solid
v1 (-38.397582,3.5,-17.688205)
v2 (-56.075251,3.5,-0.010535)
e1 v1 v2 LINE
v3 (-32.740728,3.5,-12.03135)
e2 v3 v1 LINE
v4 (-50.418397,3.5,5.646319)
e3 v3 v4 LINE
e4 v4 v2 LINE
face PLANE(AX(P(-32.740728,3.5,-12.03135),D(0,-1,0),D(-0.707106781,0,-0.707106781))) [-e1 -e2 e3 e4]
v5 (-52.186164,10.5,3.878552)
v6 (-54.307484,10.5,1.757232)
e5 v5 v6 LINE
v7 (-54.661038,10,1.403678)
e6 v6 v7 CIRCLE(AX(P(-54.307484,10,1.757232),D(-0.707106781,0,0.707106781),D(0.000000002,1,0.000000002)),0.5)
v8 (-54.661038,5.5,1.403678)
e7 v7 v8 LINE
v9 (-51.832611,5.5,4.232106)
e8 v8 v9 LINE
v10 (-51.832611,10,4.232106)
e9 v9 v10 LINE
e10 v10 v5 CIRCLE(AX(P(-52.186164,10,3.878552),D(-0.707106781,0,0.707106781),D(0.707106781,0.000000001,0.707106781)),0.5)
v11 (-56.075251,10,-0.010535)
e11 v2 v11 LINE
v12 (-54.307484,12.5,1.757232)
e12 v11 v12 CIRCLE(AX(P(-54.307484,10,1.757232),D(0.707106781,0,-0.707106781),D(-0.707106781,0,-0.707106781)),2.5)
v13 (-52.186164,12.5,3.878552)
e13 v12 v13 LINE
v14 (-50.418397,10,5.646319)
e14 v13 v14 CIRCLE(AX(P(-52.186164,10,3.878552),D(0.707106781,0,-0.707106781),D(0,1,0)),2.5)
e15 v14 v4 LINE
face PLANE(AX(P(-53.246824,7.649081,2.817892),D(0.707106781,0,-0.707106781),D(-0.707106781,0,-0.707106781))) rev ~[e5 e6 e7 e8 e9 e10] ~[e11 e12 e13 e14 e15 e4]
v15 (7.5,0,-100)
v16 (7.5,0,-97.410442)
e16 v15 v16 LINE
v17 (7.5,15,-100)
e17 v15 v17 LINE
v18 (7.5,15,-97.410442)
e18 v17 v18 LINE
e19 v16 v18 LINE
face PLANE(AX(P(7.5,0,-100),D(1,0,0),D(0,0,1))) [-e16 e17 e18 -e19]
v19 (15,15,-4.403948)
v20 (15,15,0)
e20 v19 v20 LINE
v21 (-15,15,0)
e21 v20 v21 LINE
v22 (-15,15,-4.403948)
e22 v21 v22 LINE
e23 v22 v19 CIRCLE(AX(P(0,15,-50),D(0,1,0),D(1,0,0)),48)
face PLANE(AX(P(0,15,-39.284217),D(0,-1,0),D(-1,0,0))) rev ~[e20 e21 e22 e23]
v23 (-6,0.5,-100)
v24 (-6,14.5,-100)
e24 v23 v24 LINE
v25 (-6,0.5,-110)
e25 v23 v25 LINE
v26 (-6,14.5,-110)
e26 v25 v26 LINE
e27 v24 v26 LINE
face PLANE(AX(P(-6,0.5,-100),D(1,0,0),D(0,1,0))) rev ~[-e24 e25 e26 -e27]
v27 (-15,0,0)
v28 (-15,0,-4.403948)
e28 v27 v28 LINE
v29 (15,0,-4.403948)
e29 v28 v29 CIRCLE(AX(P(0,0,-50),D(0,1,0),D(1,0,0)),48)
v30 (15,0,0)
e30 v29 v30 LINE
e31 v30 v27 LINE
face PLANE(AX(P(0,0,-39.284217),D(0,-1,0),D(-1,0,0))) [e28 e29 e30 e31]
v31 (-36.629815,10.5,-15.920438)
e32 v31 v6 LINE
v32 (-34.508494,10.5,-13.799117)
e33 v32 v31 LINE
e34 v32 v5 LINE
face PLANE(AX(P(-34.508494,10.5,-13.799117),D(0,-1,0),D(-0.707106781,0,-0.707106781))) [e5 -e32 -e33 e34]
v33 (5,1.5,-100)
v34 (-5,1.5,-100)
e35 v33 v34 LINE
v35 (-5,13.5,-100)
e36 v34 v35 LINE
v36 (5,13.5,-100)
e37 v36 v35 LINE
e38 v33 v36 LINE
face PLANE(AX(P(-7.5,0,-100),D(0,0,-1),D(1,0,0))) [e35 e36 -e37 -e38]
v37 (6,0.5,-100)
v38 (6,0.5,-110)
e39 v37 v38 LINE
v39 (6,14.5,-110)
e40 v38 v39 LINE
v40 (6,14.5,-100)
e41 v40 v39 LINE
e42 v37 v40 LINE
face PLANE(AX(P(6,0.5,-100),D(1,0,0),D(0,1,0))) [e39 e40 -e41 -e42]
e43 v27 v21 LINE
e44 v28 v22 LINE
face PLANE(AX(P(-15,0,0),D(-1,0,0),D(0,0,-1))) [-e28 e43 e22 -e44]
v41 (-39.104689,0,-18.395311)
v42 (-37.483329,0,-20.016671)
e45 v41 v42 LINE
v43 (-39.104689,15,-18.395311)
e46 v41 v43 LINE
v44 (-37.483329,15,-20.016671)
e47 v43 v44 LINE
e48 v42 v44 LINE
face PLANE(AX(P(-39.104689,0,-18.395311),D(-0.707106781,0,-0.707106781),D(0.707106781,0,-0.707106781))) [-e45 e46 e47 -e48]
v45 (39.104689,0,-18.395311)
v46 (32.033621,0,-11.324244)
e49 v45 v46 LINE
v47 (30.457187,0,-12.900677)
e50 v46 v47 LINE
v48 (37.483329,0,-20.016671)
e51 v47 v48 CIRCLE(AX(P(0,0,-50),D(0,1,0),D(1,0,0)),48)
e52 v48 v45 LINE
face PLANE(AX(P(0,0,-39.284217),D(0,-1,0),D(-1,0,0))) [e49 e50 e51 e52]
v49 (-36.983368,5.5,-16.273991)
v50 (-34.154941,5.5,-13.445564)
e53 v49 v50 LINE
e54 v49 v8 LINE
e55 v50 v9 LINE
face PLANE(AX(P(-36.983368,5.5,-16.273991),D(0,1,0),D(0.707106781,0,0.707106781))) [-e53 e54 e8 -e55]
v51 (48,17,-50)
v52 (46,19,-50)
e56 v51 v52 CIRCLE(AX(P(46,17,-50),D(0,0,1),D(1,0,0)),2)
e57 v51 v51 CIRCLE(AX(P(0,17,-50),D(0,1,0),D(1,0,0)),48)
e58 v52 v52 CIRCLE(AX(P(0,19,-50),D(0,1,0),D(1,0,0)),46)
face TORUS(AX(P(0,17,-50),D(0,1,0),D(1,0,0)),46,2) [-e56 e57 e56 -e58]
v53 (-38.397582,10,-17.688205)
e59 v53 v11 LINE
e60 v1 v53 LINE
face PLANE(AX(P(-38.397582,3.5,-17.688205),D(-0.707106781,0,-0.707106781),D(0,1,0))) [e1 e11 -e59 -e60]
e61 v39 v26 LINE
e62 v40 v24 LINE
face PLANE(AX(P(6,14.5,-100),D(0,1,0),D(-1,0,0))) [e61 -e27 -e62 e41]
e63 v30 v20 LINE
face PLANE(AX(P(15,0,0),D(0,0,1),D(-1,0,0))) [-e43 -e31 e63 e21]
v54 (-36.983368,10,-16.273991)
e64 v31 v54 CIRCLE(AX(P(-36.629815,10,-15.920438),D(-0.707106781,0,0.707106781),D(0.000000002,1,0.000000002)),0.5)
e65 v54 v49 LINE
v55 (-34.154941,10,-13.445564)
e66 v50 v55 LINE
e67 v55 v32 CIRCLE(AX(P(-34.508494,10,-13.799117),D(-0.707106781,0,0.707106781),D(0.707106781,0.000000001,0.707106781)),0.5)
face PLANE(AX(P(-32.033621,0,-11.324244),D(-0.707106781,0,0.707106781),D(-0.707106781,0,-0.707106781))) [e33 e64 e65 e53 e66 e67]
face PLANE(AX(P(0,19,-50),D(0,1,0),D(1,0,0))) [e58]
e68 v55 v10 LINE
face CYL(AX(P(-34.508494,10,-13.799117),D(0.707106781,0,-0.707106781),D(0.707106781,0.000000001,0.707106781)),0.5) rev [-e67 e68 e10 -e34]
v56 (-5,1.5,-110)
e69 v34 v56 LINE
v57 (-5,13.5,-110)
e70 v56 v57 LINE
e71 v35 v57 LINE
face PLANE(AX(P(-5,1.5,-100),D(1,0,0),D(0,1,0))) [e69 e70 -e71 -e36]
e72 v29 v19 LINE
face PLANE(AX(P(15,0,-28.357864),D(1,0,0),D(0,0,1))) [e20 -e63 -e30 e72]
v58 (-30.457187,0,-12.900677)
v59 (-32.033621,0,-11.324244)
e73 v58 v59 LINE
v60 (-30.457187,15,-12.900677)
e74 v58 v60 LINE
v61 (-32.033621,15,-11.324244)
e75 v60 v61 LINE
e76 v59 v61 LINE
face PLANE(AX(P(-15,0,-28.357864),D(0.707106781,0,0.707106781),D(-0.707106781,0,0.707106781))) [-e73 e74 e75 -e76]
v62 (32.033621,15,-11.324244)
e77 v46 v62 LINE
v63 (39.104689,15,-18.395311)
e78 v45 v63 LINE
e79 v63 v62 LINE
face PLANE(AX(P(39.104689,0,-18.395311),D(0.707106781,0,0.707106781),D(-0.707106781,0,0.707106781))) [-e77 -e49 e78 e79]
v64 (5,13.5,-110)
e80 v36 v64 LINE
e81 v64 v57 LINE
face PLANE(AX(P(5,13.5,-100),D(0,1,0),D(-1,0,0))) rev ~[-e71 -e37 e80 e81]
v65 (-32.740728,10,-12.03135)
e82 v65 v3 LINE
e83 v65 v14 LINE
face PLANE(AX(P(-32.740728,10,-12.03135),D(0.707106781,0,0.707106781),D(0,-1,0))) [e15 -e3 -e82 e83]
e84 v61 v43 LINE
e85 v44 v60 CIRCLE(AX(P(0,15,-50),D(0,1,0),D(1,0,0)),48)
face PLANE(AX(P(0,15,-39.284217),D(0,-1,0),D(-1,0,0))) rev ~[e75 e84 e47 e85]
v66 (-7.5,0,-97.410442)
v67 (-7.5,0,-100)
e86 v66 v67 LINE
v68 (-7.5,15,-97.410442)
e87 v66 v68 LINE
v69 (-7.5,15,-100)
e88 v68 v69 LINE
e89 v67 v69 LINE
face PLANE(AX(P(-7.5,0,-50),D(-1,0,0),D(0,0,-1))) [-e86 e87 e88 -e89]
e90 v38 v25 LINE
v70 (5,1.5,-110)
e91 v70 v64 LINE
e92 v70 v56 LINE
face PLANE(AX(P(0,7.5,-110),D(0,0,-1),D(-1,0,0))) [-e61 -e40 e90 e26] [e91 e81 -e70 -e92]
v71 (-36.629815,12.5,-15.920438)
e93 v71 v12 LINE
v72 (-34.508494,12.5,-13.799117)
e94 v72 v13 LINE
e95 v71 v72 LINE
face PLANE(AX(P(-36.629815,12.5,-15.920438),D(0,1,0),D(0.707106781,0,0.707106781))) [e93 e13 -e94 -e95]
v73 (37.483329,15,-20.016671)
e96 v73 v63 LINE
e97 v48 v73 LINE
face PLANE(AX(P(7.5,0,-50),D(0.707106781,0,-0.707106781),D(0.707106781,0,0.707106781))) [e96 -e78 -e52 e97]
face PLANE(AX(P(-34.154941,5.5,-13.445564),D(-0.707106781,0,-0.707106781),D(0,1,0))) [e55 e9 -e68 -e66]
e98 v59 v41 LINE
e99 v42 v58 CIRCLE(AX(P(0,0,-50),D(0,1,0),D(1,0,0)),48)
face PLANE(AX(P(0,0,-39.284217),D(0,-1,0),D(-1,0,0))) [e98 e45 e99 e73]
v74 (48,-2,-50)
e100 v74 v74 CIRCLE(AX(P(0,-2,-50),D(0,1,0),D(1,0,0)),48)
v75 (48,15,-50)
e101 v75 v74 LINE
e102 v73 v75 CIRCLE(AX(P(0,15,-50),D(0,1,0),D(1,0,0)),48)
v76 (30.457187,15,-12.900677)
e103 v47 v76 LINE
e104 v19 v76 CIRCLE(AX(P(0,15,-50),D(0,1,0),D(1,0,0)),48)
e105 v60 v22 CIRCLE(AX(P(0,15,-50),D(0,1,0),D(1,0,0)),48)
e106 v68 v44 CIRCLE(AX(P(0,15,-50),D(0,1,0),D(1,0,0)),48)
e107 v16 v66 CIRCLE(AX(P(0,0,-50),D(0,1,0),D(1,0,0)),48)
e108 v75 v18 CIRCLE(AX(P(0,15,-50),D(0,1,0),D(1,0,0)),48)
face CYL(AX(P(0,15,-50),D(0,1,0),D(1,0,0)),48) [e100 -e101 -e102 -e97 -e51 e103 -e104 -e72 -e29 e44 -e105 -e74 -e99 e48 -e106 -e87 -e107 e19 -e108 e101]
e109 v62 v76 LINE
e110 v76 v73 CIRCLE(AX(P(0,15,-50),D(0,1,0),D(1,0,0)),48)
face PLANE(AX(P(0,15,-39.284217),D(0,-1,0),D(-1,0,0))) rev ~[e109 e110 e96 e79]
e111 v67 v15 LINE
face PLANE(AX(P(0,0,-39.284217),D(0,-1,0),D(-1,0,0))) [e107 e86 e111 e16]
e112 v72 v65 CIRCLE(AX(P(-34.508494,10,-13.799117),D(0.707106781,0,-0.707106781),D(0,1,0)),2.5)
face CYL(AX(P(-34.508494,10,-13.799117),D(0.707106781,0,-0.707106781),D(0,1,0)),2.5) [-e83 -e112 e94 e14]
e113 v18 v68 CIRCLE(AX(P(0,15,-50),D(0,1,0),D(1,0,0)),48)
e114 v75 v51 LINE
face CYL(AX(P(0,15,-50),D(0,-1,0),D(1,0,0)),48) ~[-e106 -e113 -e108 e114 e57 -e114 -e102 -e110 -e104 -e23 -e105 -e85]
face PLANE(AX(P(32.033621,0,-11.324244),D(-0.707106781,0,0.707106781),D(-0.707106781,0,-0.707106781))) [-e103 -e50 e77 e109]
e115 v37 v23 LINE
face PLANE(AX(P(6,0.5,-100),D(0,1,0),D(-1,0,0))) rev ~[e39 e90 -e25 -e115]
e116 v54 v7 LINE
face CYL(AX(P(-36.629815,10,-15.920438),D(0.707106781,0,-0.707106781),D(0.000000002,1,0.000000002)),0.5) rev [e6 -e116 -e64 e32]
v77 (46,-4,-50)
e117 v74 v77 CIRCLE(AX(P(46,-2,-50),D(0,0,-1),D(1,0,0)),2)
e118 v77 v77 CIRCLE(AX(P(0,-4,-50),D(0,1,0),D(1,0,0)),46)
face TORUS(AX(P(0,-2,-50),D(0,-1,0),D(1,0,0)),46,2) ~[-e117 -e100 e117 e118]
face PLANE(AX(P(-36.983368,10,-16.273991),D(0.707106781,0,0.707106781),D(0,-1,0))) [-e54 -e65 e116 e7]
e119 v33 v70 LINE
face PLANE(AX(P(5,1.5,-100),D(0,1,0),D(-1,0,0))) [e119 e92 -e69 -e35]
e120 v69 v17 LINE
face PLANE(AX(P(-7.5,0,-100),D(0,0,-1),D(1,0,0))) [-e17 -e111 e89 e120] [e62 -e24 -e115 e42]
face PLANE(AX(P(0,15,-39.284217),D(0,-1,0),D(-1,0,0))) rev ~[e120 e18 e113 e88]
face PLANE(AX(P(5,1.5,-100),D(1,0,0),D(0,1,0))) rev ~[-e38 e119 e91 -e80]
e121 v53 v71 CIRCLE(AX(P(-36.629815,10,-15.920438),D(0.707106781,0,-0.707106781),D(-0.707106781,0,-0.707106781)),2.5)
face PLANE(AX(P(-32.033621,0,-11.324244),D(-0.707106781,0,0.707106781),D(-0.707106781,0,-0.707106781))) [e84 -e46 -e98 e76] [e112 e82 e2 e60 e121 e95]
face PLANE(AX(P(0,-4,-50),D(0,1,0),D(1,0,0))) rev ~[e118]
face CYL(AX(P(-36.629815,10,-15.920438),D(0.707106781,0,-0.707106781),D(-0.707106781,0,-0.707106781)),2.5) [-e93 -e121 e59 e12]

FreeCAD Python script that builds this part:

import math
import FreeCAD as App
import Part
import Sketcher

V = App.Vector
Q = App.Units.Quantity


def edges_at(feature, points):
    """Names of the edges that pass closest to the given points."""
    edges = feature.Shape.Edges
    near = lambda p: min(range(len(edges)), key=lambda i: edges[i].distToShape(Part.Vertex(*p))[0])
    return sorted({f"Edge{near(p) + 1}" for p in points})

doc = App.newDocument("Part")
params = doc.addObject("Spreadsheet::Sheet", "Params")
for row, (alias, value) in enumerate([
    ("sketch1_width", "15 mm"),
    ("sketch1_width2", "30 mm"),
    ("sketch1_height", "50 mm"),
    ("sketch1_length", "10 mm"),
    ("pad1_length", "15 mm"),
    ("sketch2_diameter", "96 mm"),
    ("pad2_length", "4 mm"),
    ("pad2_length2", "19 mm"),
    ("fillet_radius", "2 mm"),
    ("sketch3_radius", "2.5 mm"),
    ("sketch3_radius2", "0.5 mm"),
    ("sketch3_width", "8 mm"),
    ("sketch3_height", "6.5 mm"),
    ("sketch3_height2", "4.5 mm"),
    ("pad3_length", "25 mm"),
    ("sketch4_width", "12 mm"),
    ("sketch4_width2", "10 mm"),
    ("sketch4_height", "14 mm"),
    ("pad4_length", "10 mm"),
], start=1):
    params.set(f"A{row}", alias)
    params.set(f"B{row}", "=" + value)
    params.setAlias(f"B{row}", alias)

body = doc.addObject("PartDesign::Body", "Body")

sketch1 = doc.addObject("Sketcher::SketchObject", "Sketch")
body.addObject(sketch1)
sketch1.AttachmentSupport = (doc.XZ_Plane, [""])
sketch1.MapMode = "FlatFace"
sketch1.addGeometry([
    Part.LineSegment(V(8, -100, 0), V(-8, -100, 0)),
    Part.LineSegment(V(-8, -100, 0), V(-8, -50, 0)),
    Part.LineSegment(V(-8, -50, 0), V(-39, -18, 0)),
    Part.LineSegment(V(-39, -18, 0), V(-32, -11, 0)),
    Part.LineSegment(V(-32, -11, 0), V(-15, -28, 0)),
    Part.LineSegment(V(-15, -28, 0), V(-15, 0, 0)),
    Part.LineSegment(V(-15, 0, 0), V(15, 0, 0)),
    Part.LineSegment(V(15, 0, 0), V(15, -28, 0)),
    Part.LineSegment(V(15, -28, 0), V(32, -11, 0)),
    Part.LineSegment(V(32, -11, 0), V(39, -18, 0)),
    Part.LineSegment(V(39, -18, 0), V(8, -50, 0)),
    Part.LineSegment(V(8, -50, 0), V(8, -100, 0)),
], False)
sketch1.addConstraint([
    Sketcher.Constraint("Coincident", 0, 2, 1, 1),
    Sketcher.Constraint("Coincident", 1, 2, 2, 1),
    Sketcher.Constraint("Coincident", 2, 2, 3, 1),
    Sketcher.Constraint("Coincident", 3, 2, 4, 1),
    Sketcher.Constraint("Coincident", 4, 2, 5, 1),
    Sketcher.Constraint("Coincident", 5, 2, 6, 1),
    Sketcher.Constraint("Coincident", 6, 2, 7, 1),
    Sketcher.Constraint("Coincident", 7, 2, 8, 1),
    Sketcher.Constraint("Coincident", 8, 2, 9, 1),
    Sketcher.Constraint("Coincident", 9, 2, 10, 1),
    Sketcher.Constraint("Coincident", 10, 2, 11, 1),
    Sketcher.Constraint("Coincident", 11, 2, 0, 1),
    Sketcher.Constraint("Horizontal", 0),
    Sketcher.Constraint("Vertical", 1),
    Sketcher.Constraint("Vertical", 5),
    Sketcher.Constraint("Horizontal", 6),
    Sketcher.Constraint("Vertical", 7),
    Sketcher.Constraint("Vertical", 11),
    Sketcher.Constraint("Symmetric", 5, 2, 6, 2, -1, 1),
    Sketcher.Constraint("Symmetric", 3, 2, 8, 2, -2),
    Sketcher.Constraint("Symmetric", 2, 2, 9, 2, -2),
    Sketcher.Constraint("Symmetric", 1, 2, 10, 2, -2),
    Sketcher.Constraint("Perpendicular", 2, 3),
    Sketcher.Constraint("Perpendicular", 3, 4),
    Sketcher.Constraint("Perpendicular", 4, 8),
    Sketcher.Constraint("Perpendicular", 8, 9),
    Sketcher.Constraint("DistanceX", 0, 2, 0, 1, Q("15 mm")),
    Sketcher.Constraint("DistanceX", 6, 1, 6, 2, Q("30 mm")),
    Sketcher.Constraint("DistanceY", 1, 1, 1, 2, Q("50 mm")),
    Sketcher.Constraint("Distance", 3, Q("10 mm")),
    Sketcher.Constraint("DistanceY", 0, 2, -1, 1, Q("100 mm")),
    Sketcher.Constraint("Distance", 2, Q("44.695779 mm")),
])
sketch1.setExpression("Constraints[26]", "Params.sketch1_width")
sketch1.setExpression("Constraints[27]", "Params.sketch1_width2")
sketch1.setExpression("Constraints[28]", "Params.sketch1_height")
sketch1.setExpression("Constraints[29]", "Params.sketch1_length")
pad1 = doc.addObject("PartDesign::Pad", "Pad")
body.addObject(pad1)
pad1.Profile = sketch1
pad1.setExpression("Length", "Params.pad1_length")
pad1.Reversed = True

sketch2 = doc.addObject("Sketcher::SketchObject", "Sketch001")
body.addObject(sketch2)
sketch2.AttachmentSupport = (doc.XZ_Plane, [""])
sketch2.MapMode = "FlatFace"
sketch2.AttachmentOffset = App.Placement(V(0, 0, -15), App.Rotation())
sketch2.addGeometry(Part.Circle(V(0, -50, 0), V(0, 0, 1), 48), False)
sketch2.addConstraint([
    Sketcher.Constraint("PointOnObject", 0, 3, -2),
    Sketcher.Constraint("Diameter", 0, Q("96 mm")),
    Sketcher.Constraint("DistanceY", 0, 3, -1, 1, Q("50 mm")),
])
sketch2.setExpression("Constraints[1]", "Params.sketch2_diameter")
pad2 = doc.addObject("PartDesign::Pad", "Pad001")
body.addObject(pad2)
pad2.Profile = sketch2
pad2.Type = "TwoLengths"
pad2.setExpression("Length", "Params.pad2_length")
pad2.setExpression("Length2", "Params.pad2_length2")
pad2.Reversed = True
doc.recompute()

fillet = doc.addObject("PartDesign::Fillet", "Fillet")
body.addObject(fillet)
fillet.Base = (pad2, edges_at(pad2, [(-48, -4, -50), (-48, 19, -50)]))
fillet.setExpression("Radius", "Params.fillet_radius")

sketch3 = doc.addObject("Sketcher::SketchObject", "Sketch002")
body.addObject(sketch3)
sketch3.Placement = App.Placement(V(-10.354689, 0, 10.354689), App.Rotation(V(0.707106781, 0, 0.707106781), V(0, 0.999999999, 0), V(-0.707106781, 0, 0.707106781), "ZXY"))
sketch3.addGeometry([
    Part.LineSegment(V(-39.66, 10, 0), V(-39.66, 3.5, 0)),
    Part.LineSegment(V(-39.66, 3.5, 0), V(-31.66, 3.5, 0)),
    Part.LineSegment(V(-31.66, 3.5, 0), V(-31.66, 10, 0)),
    Part.ArcOfCircle(Part.Circle(V(-34.16, 10, 0), V(0, 0, 1), 2.5), math.radians(0), math.radians(90)),
    Part.LineSegment(V(-34.16, 12.5, 0), V(-37.16, 12.5, 0)),
    Part.ArcOfCircle(Part.Circle(V(-37.16, 10, 0), V(0, 0, 1), 2.5), math.radians(90), math.radians(180)),
    Part.ArcOfCircle(Part.Circle(V(-37.16, 10, 0), V(0, 0, 1), 0.5), math.radians(90), math.radians(180)),
    Part.LineSegment(V(-37.16, 10.5, 0), V(-34.16, 10.5, 0)),
    Part.ArcOfCircle(Part.Circle(V(-34.16, 10, 0), V(0, 0, 1), 0.5), math.radians(0), math.radians(90)),
    Part.LineSegment(V(-33.66, 10, 0), V(-33.66, 5.5, 0)),
    Part.LineSegment(V(-33.66, 5.5, 0), V(-37.66, 5.5, 0)),
    Part.LineSegment(V(-37.66, 5.5, 0), V(-37.66, 10, 0)),
], False)
sketch3.addConstraint([
    Sketcher.Constraint("Coincident", 0, 2, 1, 1),
    Sketcher.Constraint("Coincident", 1, 2, 2, 1),
    Sketcher.Constraint("Tangent", 2, 2, 3, 1),
    Sketcher.Constraint("Tangent", 3, 2, 4, 1),
    Sketcher.Constraint("Tangent", 4, 2, 5, 1),
    Sketcher.Constraint("Tangent", 5, 2, 0, 1),
    Sketcher.Constraint("Tangent", 6, 1, 7, 1),
    Sketcher.Constraint("Tangent", 7, 2, 8, 2),
    Sketcher.Constraint("Tangent", 8, 1, 9, 1),
    Sketcher.Constraint("Coincident", 9, 2, 10, 1),
    Sketcher.Constraint("Coincident", 10, 2, 11, 1),
    Sketcher.Constraint("Tangent", 11, 2, 6, 2),
    Sketcher.Constraint("Vertical", 0),
    Sketcher.Constraint("Horizontal", 1),
    Sketcher.Constraint("Vertical", 2),
    Sketcher.Constraint("Horizontal", 4),
    Sketcher.Constraint("Horizontal", 7),
    Sketcher.Constraint("Vertical", 9),
    Sketcher.Constraint("Horizontal", 10),
    Sketcher.Constraint("Vertical", 11),
    Sketcher.Constraint("Coincident", 6, 3, 5, 3),
    Sketcher.Constraint("Coincident", 8, 3, 3, 3),
    Sketcher.Constraint("Equal", 3, 5),
    Sketcher.Constraint("Radius", 3, Q("2.5 mm")),
    Sketcher.Constraint("Radius", 6, Q("0.5 mm")),
    Sketcher.Constraint("DistanceX", 1, 1, 1, 2, Q("8 mm")),
    Sketcher.Constraint("DistanceY", 0, 2, 0, 1, Q("6.5 mm")),
    Sketcher.Constraint("DistanceY", 9, 2, 9, 1, Q("4.5 mm")),
    Sketcher.Constraint("DistanceY", -1, 1, 3, 3, Q("10 mm")),
    Sketcher.Constraint("DistanceX", 3, 3, -1, 1, Q("34.15864 mm")),
])
sketch3.setExpression("Constraints[23]", "Params.sketch3_radius")
sketch3.setExpression("Constraints[24]", "Params.sketch3_radius2")
sketch3.setExpression("Constraints[25]", "Params.sketch3_width")
sketch3.setExpression("Constraints[26]", "Params.sketch3_height")
sketch3.setExpression("Constraints[27]", "Params.sketch3_height2")
pad3 = doc.addObject("PartDesign::Pad", "Pad002")
body.addObject(pad3)
pad3.Profile = sketch3
pad3.setExpression("Length", "Params.pad3_length")

sketch4 = doc.addObject("Sketcher::SketchObject", "Sketch003")
body.addObject(sketch4)
sketch4.AttachmentSupport = (doc.XY_Plane, [""])
sketch4.MapMode = "FlatFace"
sketch4.AttachmentOffset = App.Placement(V(0, 0, -100), App.Rotation())
sketch4.addGeometry([
    Part.LineSegment(V(6, 14, 0), V(6, 0, 0)),
    Part.LineSegment(V(6, 0, 0), V(-6, 0, 0)),
    Part.LineSegment(V(-6, 0, 0), V(-6, 14, 0)),
    Part.LineSegment(V(-6, 14, 0), V(6, 14, 0)),
    Part.LineSegment(V(-5, 2, 0), V(5, 2, 0)),
    Part.LineSegment(V(5, 2, 0), V(5, 14, 0)),
    Part.LineSegment(V(5, 14, 0), V(-5, 14, 0)),
    Part.LineSegment(V(-5, 14, 0), V(-5, 2, 0)),
], False)
sketch4.addConstraint([
    Sketcher.Constraint("Coincident", 0, 2, 1, 1),
    Sketcher.Constraint("Coincident", 1, 2, 2, 1),
    Sketcher.Constraint("Coincident", 2, 2, 3, 1),
    Sketcher.Constraint("Coincident", 3, 2, 0, 1),
    Sketcher.Constraint("Coincident", 4, 2, 5, 1),
    Sketcher.Constraint("Coincident", 5, 2, 6, 1),
    Sketcher.Constraint("Coincident", 6, 2, 7, 1),
    Sketcher.Constraint("Coincident", 7, 2, 4, 1),
    Sketcher.Constraint("Vertical", 0),
    Sketcher.Constraint("Horizontal", 1),
    Sketcher.Constraint("Vertical", 2),
    Sketcher.Constraint("Horizontal", 3),
    Sketcher.Constraint("Horizontal", 4),
    Sketcher.Constraint("Vertical", 5),
    Sketcher.Constraint("Horizontal", 6),
    Sketcher.Constraint("Vertical", 7),
    Sketcher.Constraint("Equal", 3, 5),
    Sketcher.Constraint("DistanceX", 1, 2, 1, 1, Q("12 mm")),
    Sketcher.Constraint("DistanceX", 4, 1, 4, 2, Q("10 mm")),
    Sketcher.Constraint("DistanceY", 0, 2, 0, 1, Q("14 mm")),
    Sketcher.Constraint("DistanceX", -1, 1, 0, 2, Q("6 mm")),
    Sketcher.Constraint("DistanceX", -1, 1, 4, 2, Q("5 mm")),
    Sketcher.Constraint("DistanceY", 0, 2, 4, 2, Q("1 mm")),
    Sketcher.Constraint("DistanceY", -1, 1, 0, 2, Q("0.5 mm")),
])
sketch4.setExpression("Constraints[17]", "Params.sketch4_width")
sketch4.setExpression("Constraints[18]", "Params.sketch4_width2")
sketch4.setExpression("Constraints[19]", "Params.sketch4_height")
pad4 = doc.addObject("PartDesign::Pad", "Pad003")
body.addObject(pad4)
pad4.Profile = sketch4
pad4.setExpression("Length", "Params.pad4_length")
pad4.Reversed = True

doc.recompute()
